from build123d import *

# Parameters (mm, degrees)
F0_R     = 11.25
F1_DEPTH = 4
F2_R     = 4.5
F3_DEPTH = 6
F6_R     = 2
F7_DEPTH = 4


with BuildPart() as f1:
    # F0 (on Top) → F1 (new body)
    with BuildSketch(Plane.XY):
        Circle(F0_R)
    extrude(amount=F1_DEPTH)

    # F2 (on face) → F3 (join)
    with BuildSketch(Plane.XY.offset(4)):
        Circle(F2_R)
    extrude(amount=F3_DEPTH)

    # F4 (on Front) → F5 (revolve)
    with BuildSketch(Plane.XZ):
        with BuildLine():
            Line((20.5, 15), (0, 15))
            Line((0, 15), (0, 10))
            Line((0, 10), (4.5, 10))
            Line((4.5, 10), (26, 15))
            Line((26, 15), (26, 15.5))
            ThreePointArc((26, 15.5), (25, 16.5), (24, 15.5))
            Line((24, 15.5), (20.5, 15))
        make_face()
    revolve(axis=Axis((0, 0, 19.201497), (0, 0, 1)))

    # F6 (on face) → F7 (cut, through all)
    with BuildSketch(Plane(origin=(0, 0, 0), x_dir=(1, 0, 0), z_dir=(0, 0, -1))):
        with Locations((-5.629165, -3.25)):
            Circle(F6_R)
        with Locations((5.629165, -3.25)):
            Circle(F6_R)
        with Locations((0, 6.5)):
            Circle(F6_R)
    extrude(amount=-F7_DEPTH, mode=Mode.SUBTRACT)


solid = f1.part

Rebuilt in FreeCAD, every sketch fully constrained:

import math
import FreeCAD as App
import Part
import Sketcher
Q = App.Units.Quantity

doc = App.newDocument("Part")
body = doc.addObject("PartDesign::Body", "Body")

sketch1 = doc.addObject("Sketcher::SketchObject", "Sketch")
body.addObject(sketch1)
sketch1.AttachmentSupport = (doc.XY_Plane, [""])
sketch1.MapMode = "FlatFace"
sketch1.addGeometry(Part.Circle(App.Vector(0, 0, 0), App.Vector(0, 0, 1), 11.25), False)
sketch1.addConstraint([
    Sketcher.Constraint("Coincident", 0, 3, -1, 1),
    Sketcher.Constraint("Diameter", 0, Q("22.5 mm")),
])
pad1 = doc.addObject("PartDesign::Pad", "Pad")
body.addObject(pad1)
pad1.Profile = sketch1
pad1.Length = 4

sketch2 = doc.addObject("Sketcher::SketchObject", "Sketch001")
body.addObject(sketch2)
sketch2.AttachmentSupport = (doc.XY_Plane, [""])
sketch2.MapMode = "FlatFace"
sketch2.AttachmentOffset = App.Placement(App.Vector(0, 0, 4), App.Rotation())
sketch2.addGeometry(Part.Circle(App.Vector(0, 0, 0), App.Vector(0, 0, 1), 4.5), False)
sketch2.addConstraint([
    Sketcher.Constraint("Coincident", 0, 3, -1, 1),
    Sketcher.Constraint("Diameter", 0, Q("9 mm")),
])
pad2 = doc.addObject("PartDesign::Pad", "Pad001")
body.addObject(pad2)
pad2.Profile = sketch2
pad2.Length = 6

sketch3 = doc.addObject("Sketcher::SketchObject", "Sketch002")
body.addObject(sketch3)
sketch3.AttachmentSupport = (doc.XZ_Plane, [""])
sketch3.MapMode = "FlatFace"
sketch3.addGeometry([
    Part.LineSegment(App.Vector(20.5, 15, 0), App.Vector(0, 15, 0)),
    Part.LineSegment(App.Vector(0, 15, 0), App.Vector(0, 10, 0)),
    Part.LineSegment(App.Vector(0, 10, 0), App.Vector(4.5, 10, 0)),
    Part.LineSegment(App.Vector(4.5, 10, 0), App.Vector(26, 15, 0)),
    Part.LineSegment(App.Vector(26, 15, 0), App.Vector(26, 15.5, 0)),
    Part.ArcOfCircle(Part.Circle(App.Vector(25, 15.5, 0), App.Vector(0, 0, 1), 1), math.radians(0), math.radians(180)),
    Part.LineSegment(App.Vector(24, 15.5, 0), App.Vector(20.5, 15, 0)),
], False)
sketch3.addConstraint([
    Sketcher.Constraint("Coincident", 0, 2, 1, 1),
    Sketcher.Constraint("Coincident", 1, 2, 2, 1),
    Sketcher.Constraint("Coincident", 2, 2, 3, 1),
    Sketcher.Constraint("Coincident", 3, 2, 4, 1),
    Sketcher.Constraint("Tangent", 4, 2, 5, 1),
    Sketcher.Constraint("Coincident", 5, 2, 6, 1),
    Sketcher.Constraint("Coincident", 6, 2, 0, 1),
    Sketcher.Constraint("Horizontal", 0),
    Sketcher.Constraint("Vertical", 1),
    Sketcher.Constraint("Horizontal", 2),
    Sketcher.Constraint("Vertical", 4),
    Sketcher.Constraint("PointOnObject", 0, 2, -2),
    Sketcher.Constraint("Horizontal", 0, 2, 3, 2),
    Sketcher.Constraint("Horizontal", 4, 2, 5, 2),
    Sketcher.Constraint("Radius", 5, Q("1 mm")),
    Sketcher.Constraint("DistanceY", 1, 2, 1, 1, Q("5 mm")),
    Sketcher.Constraint("DistanceX", 0, 2, 0, 1, Q("20.5 mm")),
    Sketcher.Constraint("DistanceX", 2, 1, 2, 2, Q("4.5 mm")),
    Sketcher.Constraint("DistanceY", 4, 1, 4, 2, Q("0.5 mm")),
    Sketcher.Constraint("DistanceX", -1, 1, 5, 3, Q("25 mm")),
    Sketcher.Constraint("DistanceY", -1, 1, 0, 2, Q("15 mm")),
])
revolution = doc.addObject("PartDesign::Revolution", "Revolution")
body.addObject(revolution)
revolution.Profile = sketch3
revolution.ReferenceAxis = (sketch3, ["V_Axis"])
revolution.Angle = 360

sketch4 = doc.addObject("Sketcher::SketchObject", "Sketch003")
body.addObject(sketch4)
sketch4.AttachmentSupport = (doc.XY_Plane, [""])
sketch4.MapMode = "FlatFace"
sketch4.addGeometry([
    Part.Circle(App.Vector(-5.629165, 3.25, 0), App.Vector(0, 0, 1), 2),
    Part.Circle(App.Vector(5.629165, 3.25, 0), App.Vector(0, 0, 1), 2),
    Part.Circle(App.Vector(0, -6.5, 0), App.Vector(0, 0, 1), 2),
], False)
sketch4.addConstraint([
    Sketcher.Constraint("Equal", 0, 1),
    Sketcher.Constraint("Equal", 1, 2),
    Sketcher.Constraint("Symmetric", 0, 3, 1, 3, -2),
    Sketcher.Constraint("PointOnObject", 2, 3, -2),
    Sketcher.Constraint("Diameter", 0, Q("4 mm")),
    Sketcher.Constraint("DistanceY", 2, 3, -1, 1, Q("6.5 mm")),
    Sketcher.Constraint("DistanceY", -1, 1, 0, 3, Q("3.25 mm")),
    Sketcher.Constraint("DistanceX", 0, 3, 1, 3, Q("11.25833 mm")),
])
pocket1 = doc.addObject("PartDesign::Pocket", "Pocket")
body.addObject(pocket1)
pocket1.Profile = sketch4
pocket1.Length = 4
pocket1.Reversed = True

doc.recompute()
